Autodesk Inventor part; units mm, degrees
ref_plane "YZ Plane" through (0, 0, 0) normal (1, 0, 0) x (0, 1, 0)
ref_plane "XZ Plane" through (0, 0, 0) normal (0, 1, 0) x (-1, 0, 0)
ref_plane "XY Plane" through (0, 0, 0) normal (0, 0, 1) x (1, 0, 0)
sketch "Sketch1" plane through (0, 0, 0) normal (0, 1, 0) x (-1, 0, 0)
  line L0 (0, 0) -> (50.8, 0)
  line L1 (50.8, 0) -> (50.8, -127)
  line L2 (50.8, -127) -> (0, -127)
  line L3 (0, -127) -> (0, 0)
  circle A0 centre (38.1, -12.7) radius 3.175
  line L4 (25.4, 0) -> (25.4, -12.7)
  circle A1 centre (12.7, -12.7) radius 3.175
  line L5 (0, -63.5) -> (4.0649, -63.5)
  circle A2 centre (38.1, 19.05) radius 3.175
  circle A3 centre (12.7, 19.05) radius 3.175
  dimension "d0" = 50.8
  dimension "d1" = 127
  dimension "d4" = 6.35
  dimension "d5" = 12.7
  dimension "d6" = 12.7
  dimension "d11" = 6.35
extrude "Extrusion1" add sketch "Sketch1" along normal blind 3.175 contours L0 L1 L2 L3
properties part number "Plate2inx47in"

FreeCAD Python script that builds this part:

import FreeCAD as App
import Part
import Sketcher
Q = App.Units.Quantity


def add_polygon(sketch, points):
    """Adds a closed chain of lines whose ends are joined by coincident constraints."""
    first, n = sketch.GeometryCount, len(points)
    for a, b in zip(points, points[1:] + points[:1]):
        sketch.addGeometry(Part.LineSegment(App.Vector(*a, 0), App.Vector(*b, 0)), False)
    for i in range(n):
        sketch.addConstraint(Sketcher.Constraint("Coincident", first + i, 2, first + (i + 1) % n, 1))

doc = App.newDocument("Part")
body = doc.addObject("PartDesign::Body", "Body")

sketch1 = body.newObject("Sketcher::SketchObject", "Sketch")
sketch1.AttachmentSupport = (doc.getObject("XZ_Plane"), [""])
sketch1.MapMode = "FlatFace"
add_polygon(sketch1, [(-50.8, 0), (0, 0), (0, -127), (-50.8, -127)])
sketch1.addGeometry(Part.Circle(App.Vector(-12.7, -12.7, 0), App.Vector(0, 0, 1), 3.2), False)
sketch1.addGeometry(Part.Circle(App.Vector(-38.1, -12.7, 0), App.Vector(0, 0, 1), 3.2), False)
sketch1.addConstraint([
    Sketcher.Constraint("Horizontal", 0),
    Sketcher.Constraint("Vertical", 1),
    Sketcher.Constraint("Horizontal", 2),
    Sketcher.Constraint("Vertical", 3),
    Sketcher.Constraint("Coincident", 0, 2, -1, 1),
    Sketcher.Constraint("Equal", 4, 5),
    Sketcher.Constraint("Horizontal", 4, 3, 5, 3),
    Sketcher.Constraint("Diameter", 4, Q("0.25 in")),
    Sketcher.Constraint("DistanceX", 0, 1, 0, 2, Q("2 in")),
    Sketcher.Constraint("DistanceY", 1, 2, 1, 1, Q("5 in")),
    Sketcher.Constraint("DistanceX", 4, 3, -1, 1, Q("0.5 in")),
    Sketcher.Constraint("DistanceY", 4, 3, -1, 1, Q("0.5 in")),
    Sketcher.Constraint("DistanceX", 2, 2, 5, 3, Q("0.5 in")),
])
pad1 = body.newObject("PartDesign::Pad", "Pad")
pad1.Profile = sketch1
pad1.Length = Q("0.125 in")
pad1.Reversed = True

doc.recompute()
